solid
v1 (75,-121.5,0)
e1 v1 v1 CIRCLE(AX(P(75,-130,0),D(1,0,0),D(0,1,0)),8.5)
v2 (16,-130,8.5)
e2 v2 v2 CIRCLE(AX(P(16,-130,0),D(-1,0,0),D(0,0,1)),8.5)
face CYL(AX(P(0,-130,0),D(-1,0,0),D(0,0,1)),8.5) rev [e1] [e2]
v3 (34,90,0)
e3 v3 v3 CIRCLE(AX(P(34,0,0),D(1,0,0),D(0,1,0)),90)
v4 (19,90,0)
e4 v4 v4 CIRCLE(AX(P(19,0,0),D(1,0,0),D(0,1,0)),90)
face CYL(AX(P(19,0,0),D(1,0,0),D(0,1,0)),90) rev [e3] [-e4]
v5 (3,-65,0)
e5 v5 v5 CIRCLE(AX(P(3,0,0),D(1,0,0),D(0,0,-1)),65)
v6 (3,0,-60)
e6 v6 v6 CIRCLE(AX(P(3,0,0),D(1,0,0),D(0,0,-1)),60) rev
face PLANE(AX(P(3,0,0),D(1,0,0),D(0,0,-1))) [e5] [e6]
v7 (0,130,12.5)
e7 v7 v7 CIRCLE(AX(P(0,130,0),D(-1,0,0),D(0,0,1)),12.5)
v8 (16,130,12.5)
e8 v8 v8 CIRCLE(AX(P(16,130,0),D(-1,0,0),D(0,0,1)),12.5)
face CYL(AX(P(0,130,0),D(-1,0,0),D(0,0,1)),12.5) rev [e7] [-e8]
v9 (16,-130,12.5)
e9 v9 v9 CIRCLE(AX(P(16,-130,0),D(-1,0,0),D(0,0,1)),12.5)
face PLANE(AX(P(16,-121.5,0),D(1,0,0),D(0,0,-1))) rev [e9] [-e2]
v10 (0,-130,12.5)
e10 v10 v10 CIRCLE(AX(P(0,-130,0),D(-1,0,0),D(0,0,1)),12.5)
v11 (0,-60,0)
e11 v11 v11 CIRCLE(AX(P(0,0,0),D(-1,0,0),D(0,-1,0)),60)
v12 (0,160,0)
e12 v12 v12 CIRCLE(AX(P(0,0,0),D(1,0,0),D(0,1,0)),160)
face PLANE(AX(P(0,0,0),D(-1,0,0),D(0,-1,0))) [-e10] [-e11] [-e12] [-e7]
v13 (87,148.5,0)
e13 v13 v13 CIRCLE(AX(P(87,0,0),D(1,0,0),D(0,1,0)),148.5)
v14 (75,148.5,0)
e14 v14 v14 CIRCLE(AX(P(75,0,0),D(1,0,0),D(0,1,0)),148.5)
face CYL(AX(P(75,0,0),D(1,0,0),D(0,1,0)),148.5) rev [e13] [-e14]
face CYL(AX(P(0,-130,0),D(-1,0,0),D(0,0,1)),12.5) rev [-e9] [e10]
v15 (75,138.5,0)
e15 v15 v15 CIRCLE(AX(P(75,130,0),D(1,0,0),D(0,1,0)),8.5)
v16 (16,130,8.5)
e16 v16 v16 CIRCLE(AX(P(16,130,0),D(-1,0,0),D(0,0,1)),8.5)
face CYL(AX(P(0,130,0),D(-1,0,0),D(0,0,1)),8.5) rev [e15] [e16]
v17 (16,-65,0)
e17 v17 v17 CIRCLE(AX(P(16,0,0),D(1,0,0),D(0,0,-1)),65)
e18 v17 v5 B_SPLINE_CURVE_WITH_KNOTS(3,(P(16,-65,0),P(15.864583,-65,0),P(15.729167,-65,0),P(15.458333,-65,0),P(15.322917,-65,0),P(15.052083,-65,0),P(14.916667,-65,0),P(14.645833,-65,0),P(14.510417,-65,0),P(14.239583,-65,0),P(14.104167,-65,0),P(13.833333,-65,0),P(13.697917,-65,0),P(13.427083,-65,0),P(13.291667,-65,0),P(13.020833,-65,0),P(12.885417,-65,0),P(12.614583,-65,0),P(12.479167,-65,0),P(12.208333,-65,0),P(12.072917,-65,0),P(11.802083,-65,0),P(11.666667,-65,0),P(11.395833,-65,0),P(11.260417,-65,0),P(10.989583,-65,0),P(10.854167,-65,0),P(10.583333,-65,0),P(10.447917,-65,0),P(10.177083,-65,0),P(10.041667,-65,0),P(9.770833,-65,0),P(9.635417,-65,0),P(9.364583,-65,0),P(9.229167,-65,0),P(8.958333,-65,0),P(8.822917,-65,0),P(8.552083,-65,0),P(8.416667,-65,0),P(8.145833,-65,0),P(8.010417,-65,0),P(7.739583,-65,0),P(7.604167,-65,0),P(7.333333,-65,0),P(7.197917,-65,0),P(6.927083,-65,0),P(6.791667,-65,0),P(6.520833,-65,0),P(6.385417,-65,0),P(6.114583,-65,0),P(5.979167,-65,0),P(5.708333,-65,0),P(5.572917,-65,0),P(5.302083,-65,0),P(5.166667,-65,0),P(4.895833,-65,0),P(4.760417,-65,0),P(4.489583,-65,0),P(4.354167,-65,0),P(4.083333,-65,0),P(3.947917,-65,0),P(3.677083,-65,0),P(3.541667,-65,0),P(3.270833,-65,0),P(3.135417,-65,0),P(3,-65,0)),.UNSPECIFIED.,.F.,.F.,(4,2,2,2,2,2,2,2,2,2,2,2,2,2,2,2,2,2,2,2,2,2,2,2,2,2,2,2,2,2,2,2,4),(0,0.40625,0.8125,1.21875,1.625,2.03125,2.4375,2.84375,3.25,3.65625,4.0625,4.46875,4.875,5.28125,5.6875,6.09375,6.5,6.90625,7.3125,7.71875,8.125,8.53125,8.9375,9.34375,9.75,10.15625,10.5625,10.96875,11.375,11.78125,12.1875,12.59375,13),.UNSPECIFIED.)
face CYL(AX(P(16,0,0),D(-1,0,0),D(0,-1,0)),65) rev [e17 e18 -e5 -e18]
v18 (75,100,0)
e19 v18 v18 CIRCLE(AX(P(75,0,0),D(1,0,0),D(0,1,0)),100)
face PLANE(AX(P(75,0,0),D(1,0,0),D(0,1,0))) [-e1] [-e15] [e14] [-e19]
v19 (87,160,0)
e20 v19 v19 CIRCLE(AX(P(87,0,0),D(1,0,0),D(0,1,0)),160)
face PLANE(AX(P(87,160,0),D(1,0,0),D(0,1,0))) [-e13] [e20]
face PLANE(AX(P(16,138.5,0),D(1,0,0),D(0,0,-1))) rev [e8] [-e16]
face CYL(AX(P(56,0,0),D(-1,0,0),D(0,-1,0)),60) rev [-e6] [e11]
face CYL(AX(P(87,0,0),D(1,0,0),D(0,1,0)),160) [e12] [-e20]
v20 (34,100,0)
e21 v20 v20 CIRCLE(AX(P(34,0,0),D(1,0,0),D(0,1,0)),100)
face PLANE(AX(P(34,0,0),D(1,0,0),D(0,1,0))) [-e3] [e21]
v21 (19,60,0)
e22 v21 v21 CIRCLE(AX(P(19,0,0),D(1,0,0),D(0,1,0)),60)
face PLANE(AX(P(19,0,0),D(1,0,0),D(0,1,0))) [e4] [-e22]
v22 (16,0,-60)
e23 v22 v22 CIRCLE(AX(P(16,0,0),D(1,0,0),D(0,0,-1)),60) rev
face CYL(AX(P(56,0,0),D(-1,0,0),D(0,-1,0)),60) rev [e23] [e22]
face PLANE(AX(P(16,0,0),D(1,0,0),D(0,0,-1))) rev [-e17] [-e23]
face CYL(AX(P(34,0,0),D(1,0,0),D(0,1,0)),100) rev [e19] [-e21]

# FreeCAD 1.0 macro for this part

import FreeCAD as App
import Part
import Sketcher

doc = App.newDocument("Part")
params = doc.addObject("Spreadsheet::Sheet", "Params")
for row, (alias, value) in enumerate([
    ("sketch1_width", "87 mm"),
    ("sketch1_height", "160 mm"),
    ("revolution_angle", "360 deg"),
    ("sketch2_diameter", "297 mm"),
    ("pocket1_length", "12 mm"),
    ("sketch3_diameter", "200 mm"),
    ("sketch3_diameter2", "180 mm"),
    ("pocket2_length", "53 mm"),
    ("sketch4_diameter", "180 mm"),
    ("pocket3_length", "56 mm"),
    ("sketch5_diameter", "120 mm"),
    ("pocket4_length", "56 mm"),
    ("sketch6_diameter", "130 mm"),
    ("pocket5_length", "13 mm"),
    ("sketch7_diameter", "17 mm"),
    ("hole_diameter", "17 mm"),
    ("hole_depth", "83 mm"),
    ("hole_cbore_diameter", "25 mm"),
    ("hole_cbore_depth", "16 mm"),
], start=1):
    params.set(f"A{row}", alias)
    params.set(f"B{row}", "=" + value)
    params.setAlias(f"B{row}", alias)

body = doc.addObject("PartDesign::Body", "Body")

# Sketch on XY plane
sketch1 = doc.addObject("Sketcher::SketchObject", "Sketch")
body.addObject(sketch1)
sketch1.AttachmentSupport = (doc.XY_Plane, [""])
sketch1.MapMode = "FlatFace"
sketch1.addGeometry([
    Part.LineSegment(App.Vector(0, 160, 0), App.Vector(0, 0, 0)),
    Part.LineSegment(App.Vector(0, 0, 0), App.Vector(87, 0, 0)),
    Part.LineSegment(App.Vector(87, 0, 0), App.Vector(87, 160, 0)),
    Part.LineSegment(App.Vector(87, 160, 0), App.Vector(0, 160, 0)),
], False)
sketch1.addConstraint([
    Sketcher.Constraint("Coincident", 0, 2, 1, 1),
    Sketcher.Constraint("Coincident", 1, 2, 2, 1),
    Sketcher.Constraint("Coincident", 2, 2, 3, 1),
    Sketcher.Constraint("Coincident", 3, 2, 0, 1),
    Sketcher.Constraint("Vertical", 0),
    Sketcher.Constraint("Horizontal", 1),
    Sketcher.Constraint("Vertical", 2),
    Sketcher.Constraint("Horizontal", 3),
    Sketcher.Constraint("Coincident", 0, 2, -1, 1),
    Sketcher.Constraint("DistanceX", 1, 1, 1, 2, 87.0),
    Sketcher.Constraint("DistanceY", 0, 2, 0, 1, 160.0),
])
sketch1.setExpression("Constraints[9]", "Params.sketch1_width")
sketch1.setExpression("Constraints[10]", "Params.sketch1_height")
revolution = doc.addObject("PartDesign::Revolution", "Revolution")
body.addObject(revolution)
revolution.Profile = sketch1
revolution.ReferenceAxis = (sketch1, ["H_Axis"])
revolution.setExpression("Angle", "Params.revolution_angle")

# Sketch on YZ plane
sketch2 = doc.addObject("Sketcher::SketchObject", "Sketch001")
body.addObject(sketch2)
sketch2.AttachmentSupport = (doc.YZ_Plane, [""])
sketch2.MapMode = "FlatFace"
sketch2.AttachmentOffset = App.Placement(App.Vector(0, 0, 87), App.Rotation())
sketch2.addGeometry(Part.Circle(App.Vector(0, 0, 0), App.Vector(0, 0, 1), 148), False)
sketch2.addConstraint([
    Sketcher.Constraint("Coincident", 0, 3, -1, 1),
    Sketcher.Constraint("Diameter", 0, 297.0),
])
sketch2.setExpression("Constraints[1]", "Params.sketch2_diameter")
pocket1 = doc.addObject("PartDesign::Pocket", "Pocket")
body.addObject(pocket1)
pocket1.Profile = sketch2
pocket1.setExpression("Length", "Params.pocket1_length")

# Sketch on YZ plane
sketch3 = doc.addObject("Sketcher::SketchObject", "Sketch002")
body.addObject(sketch3)
sketch3.AttachmentSupport = (doc.YZ_Plane, [""])
sketch3.MapMode = "FlatFace"
sketch3.AttachmentOffset = App.Placement(App.Vector(0, 0, 87), App.Rotation())
sketch3.addGeometry([
    Part.Circle(App.Vector(0, 0, 0), App.Vector(0, 0, 1), 100),
    Part.Circle(App.Vector(0, 0, 0), App.Vector(0, 0, 1), 90),
], False)
sketch3.addConstraint([
    Sketcher.Constraint("Coincident", 0, 3, -1, 1),
    Sketcher.Constraint("Coincident", 1, 3, -1, 1),
    Sketcher.Constraint("Diameter", 0, 200.0),
    Sketcher.Constraint("Diameter", 1, 180.0),
])
sketch3.setExpression("Constraints[2]", "Params.sketch3_diameter")
sketch3.setExpression("Constraints[3]", "Params.sketch3_diameter2")
pocket2 = doc.addObject("PartDesign::Pocket", "Pocket001")
body.addObject(pocket2)
pocket2.Profile = sketch3
pocket2.setExpression("Length", "Params.pocket2_length")

# Sketch on YZ plane
sketch4 = doc.addObject("Sketcher::SketchObject", "Sketch003")
body.addObject(sketch4)
sketch4.AttachmentSupport = (doc.YZ_Plane, [""])
sketch4.MapMode = "FlatFace"
sketch4.AttachmentOffset = App.Placement(App.Vector(0, 0, 75), App.Rotation())
sketch4.addGeometry(Part.Circle(App.Vector(0, 0, 0), App.Vector(0, 0, 1), 90), False)
sketch4.addConstraint([
    Sketcher.Constraint("Coincident", 0, 3, -1, 1),
    Sketcher.Constraint("Diameter", 0, 180.0),
])
sketch4.setExpression("Constraints[1]", "Params.sketch4_diameter")
pocket3 = doc.addObject("PartDesign::Pocket", "Pocket002")
body.addObject(pocket3)
pocket3.Profile = sketch4
pocket3.setExpression("Length", "Params.pocket3_length")

# Sketch on YZ plane
sketch5 = doc.addObject("Sketcher::SketchObject", "Sketch004")
body.addObject(sketch5)
sketch5.AttachmentSupport = (doc.YZ_Plane, [""])
sketch5.MapMode = "FlatFace"
sketch5.addGeometry(Part.Circle(App.Vector(0, 0, 0), App.Vector(0, 0, 1), 60), False)
sketch5.addConstraint([
    Sketcher.Constraint("Coincident", 0, 3, -1, 1),
    Sketcher.Constraint("Diameter", 0, 120.0),
])
sketch5.setExpression("Constraints[1]", "Params.sketch5_diameter")
pocket4 = doc.addObject("PartDesign::Pocket", "Pocket003")
body.addObject(pocket4)
pocket4.Profile = sketch5
pocket4.setExpression("Length", "Params.pocket4_length")
pocket4.Reversed = True

# Sketch on YZ plane
sketch6 = doc.addObject("Sketcher::SketchObject", "Sketch005")
body.addObject(sketch6)
sketch6.AttachmentSupport = (doc.YZ_Plane, [""])
sketch6.MapMode = "FlatFace"
sketch6.AttachmentOffset = App.Placement(App.Vector(0, 0, 3), App.Rotation())
sketch6.addGeometry(Part.Circle(App.Vector(0, 0, 0), App.Vector(0, 0, 1), 65), False)
sketch6.addConstraint([
    Sketcher.Constraint("Coincident", 0, 3, -1, 1),
    Sketcher.Constraint("Diameter", 0, 130.0),
])
sketch6.setExpression("Constraints[1]", "Params.sketch6_diameter")
pocket5 = doc.addObject("PartDesign::Pocket", "Pocket004")
body.addObject(pocket5)
pocket5.Profile = sketch6
pocket5.setExpression("Length", "Params.pocket5_length")
pocket5.Reversed = True

# Sketch on YZ plane
sketch7 = doc.addObject("Sketcher::SketchObject", "Sketch006")
body.addObject(sketch7)
sketch7.AttachmentSupport = (doc.YZ_Plane, [""])
sketch7.MapMode = "FlatFace"
sketch7.addGeometry([
    Part.Circle(App.Vector(130, 0, 0), App.Vector(0, 0, 1), 8),
    Part.Circle(App.Vector(-130, 0, 0), App.Vector(0, 0, 1), 8),
], False)
sketch7.addConstraint([
    Sketcher.Constraint("Equal", 0, 1),
    Sketcher.Constraint("Symmetric", 0, 3, 1, 3, -1, 1),
    Sketcher.Constraint("PointOnObject", 0, 3, -1),
    Sketcher.Constraint("Diameter", 0, 17.0),
    Sketcher.Constraint("DistanceX", -1, 1, 0, 3, 130.0),
])
sketch7.setExpression("Constraints[3]", "Params.sketch7_diameter")
doc.recompute()
hole = doc.addObject("PartDesign::Hole", "Hole")
body.addObject(hole)
hole.Profile = sketch7
hole.ThreadType = "None"
hole.setExpression("Diameter", "Params.hole_diameter")
hole.DepthType = "Dimension"
hole.setExpression("Depth", "Params.hole_depth")
hole.DrillPoint = "Flat"
hole.HoleCutType = "Counterbore"
hole.setExpression("HoleCutDiameter", "Params.hole_cbore_diameter")
hole.setExpression("HoleCutDepth", "Params.hole_cbore_depth")
hole.Reversed = True

doc.recompute()
